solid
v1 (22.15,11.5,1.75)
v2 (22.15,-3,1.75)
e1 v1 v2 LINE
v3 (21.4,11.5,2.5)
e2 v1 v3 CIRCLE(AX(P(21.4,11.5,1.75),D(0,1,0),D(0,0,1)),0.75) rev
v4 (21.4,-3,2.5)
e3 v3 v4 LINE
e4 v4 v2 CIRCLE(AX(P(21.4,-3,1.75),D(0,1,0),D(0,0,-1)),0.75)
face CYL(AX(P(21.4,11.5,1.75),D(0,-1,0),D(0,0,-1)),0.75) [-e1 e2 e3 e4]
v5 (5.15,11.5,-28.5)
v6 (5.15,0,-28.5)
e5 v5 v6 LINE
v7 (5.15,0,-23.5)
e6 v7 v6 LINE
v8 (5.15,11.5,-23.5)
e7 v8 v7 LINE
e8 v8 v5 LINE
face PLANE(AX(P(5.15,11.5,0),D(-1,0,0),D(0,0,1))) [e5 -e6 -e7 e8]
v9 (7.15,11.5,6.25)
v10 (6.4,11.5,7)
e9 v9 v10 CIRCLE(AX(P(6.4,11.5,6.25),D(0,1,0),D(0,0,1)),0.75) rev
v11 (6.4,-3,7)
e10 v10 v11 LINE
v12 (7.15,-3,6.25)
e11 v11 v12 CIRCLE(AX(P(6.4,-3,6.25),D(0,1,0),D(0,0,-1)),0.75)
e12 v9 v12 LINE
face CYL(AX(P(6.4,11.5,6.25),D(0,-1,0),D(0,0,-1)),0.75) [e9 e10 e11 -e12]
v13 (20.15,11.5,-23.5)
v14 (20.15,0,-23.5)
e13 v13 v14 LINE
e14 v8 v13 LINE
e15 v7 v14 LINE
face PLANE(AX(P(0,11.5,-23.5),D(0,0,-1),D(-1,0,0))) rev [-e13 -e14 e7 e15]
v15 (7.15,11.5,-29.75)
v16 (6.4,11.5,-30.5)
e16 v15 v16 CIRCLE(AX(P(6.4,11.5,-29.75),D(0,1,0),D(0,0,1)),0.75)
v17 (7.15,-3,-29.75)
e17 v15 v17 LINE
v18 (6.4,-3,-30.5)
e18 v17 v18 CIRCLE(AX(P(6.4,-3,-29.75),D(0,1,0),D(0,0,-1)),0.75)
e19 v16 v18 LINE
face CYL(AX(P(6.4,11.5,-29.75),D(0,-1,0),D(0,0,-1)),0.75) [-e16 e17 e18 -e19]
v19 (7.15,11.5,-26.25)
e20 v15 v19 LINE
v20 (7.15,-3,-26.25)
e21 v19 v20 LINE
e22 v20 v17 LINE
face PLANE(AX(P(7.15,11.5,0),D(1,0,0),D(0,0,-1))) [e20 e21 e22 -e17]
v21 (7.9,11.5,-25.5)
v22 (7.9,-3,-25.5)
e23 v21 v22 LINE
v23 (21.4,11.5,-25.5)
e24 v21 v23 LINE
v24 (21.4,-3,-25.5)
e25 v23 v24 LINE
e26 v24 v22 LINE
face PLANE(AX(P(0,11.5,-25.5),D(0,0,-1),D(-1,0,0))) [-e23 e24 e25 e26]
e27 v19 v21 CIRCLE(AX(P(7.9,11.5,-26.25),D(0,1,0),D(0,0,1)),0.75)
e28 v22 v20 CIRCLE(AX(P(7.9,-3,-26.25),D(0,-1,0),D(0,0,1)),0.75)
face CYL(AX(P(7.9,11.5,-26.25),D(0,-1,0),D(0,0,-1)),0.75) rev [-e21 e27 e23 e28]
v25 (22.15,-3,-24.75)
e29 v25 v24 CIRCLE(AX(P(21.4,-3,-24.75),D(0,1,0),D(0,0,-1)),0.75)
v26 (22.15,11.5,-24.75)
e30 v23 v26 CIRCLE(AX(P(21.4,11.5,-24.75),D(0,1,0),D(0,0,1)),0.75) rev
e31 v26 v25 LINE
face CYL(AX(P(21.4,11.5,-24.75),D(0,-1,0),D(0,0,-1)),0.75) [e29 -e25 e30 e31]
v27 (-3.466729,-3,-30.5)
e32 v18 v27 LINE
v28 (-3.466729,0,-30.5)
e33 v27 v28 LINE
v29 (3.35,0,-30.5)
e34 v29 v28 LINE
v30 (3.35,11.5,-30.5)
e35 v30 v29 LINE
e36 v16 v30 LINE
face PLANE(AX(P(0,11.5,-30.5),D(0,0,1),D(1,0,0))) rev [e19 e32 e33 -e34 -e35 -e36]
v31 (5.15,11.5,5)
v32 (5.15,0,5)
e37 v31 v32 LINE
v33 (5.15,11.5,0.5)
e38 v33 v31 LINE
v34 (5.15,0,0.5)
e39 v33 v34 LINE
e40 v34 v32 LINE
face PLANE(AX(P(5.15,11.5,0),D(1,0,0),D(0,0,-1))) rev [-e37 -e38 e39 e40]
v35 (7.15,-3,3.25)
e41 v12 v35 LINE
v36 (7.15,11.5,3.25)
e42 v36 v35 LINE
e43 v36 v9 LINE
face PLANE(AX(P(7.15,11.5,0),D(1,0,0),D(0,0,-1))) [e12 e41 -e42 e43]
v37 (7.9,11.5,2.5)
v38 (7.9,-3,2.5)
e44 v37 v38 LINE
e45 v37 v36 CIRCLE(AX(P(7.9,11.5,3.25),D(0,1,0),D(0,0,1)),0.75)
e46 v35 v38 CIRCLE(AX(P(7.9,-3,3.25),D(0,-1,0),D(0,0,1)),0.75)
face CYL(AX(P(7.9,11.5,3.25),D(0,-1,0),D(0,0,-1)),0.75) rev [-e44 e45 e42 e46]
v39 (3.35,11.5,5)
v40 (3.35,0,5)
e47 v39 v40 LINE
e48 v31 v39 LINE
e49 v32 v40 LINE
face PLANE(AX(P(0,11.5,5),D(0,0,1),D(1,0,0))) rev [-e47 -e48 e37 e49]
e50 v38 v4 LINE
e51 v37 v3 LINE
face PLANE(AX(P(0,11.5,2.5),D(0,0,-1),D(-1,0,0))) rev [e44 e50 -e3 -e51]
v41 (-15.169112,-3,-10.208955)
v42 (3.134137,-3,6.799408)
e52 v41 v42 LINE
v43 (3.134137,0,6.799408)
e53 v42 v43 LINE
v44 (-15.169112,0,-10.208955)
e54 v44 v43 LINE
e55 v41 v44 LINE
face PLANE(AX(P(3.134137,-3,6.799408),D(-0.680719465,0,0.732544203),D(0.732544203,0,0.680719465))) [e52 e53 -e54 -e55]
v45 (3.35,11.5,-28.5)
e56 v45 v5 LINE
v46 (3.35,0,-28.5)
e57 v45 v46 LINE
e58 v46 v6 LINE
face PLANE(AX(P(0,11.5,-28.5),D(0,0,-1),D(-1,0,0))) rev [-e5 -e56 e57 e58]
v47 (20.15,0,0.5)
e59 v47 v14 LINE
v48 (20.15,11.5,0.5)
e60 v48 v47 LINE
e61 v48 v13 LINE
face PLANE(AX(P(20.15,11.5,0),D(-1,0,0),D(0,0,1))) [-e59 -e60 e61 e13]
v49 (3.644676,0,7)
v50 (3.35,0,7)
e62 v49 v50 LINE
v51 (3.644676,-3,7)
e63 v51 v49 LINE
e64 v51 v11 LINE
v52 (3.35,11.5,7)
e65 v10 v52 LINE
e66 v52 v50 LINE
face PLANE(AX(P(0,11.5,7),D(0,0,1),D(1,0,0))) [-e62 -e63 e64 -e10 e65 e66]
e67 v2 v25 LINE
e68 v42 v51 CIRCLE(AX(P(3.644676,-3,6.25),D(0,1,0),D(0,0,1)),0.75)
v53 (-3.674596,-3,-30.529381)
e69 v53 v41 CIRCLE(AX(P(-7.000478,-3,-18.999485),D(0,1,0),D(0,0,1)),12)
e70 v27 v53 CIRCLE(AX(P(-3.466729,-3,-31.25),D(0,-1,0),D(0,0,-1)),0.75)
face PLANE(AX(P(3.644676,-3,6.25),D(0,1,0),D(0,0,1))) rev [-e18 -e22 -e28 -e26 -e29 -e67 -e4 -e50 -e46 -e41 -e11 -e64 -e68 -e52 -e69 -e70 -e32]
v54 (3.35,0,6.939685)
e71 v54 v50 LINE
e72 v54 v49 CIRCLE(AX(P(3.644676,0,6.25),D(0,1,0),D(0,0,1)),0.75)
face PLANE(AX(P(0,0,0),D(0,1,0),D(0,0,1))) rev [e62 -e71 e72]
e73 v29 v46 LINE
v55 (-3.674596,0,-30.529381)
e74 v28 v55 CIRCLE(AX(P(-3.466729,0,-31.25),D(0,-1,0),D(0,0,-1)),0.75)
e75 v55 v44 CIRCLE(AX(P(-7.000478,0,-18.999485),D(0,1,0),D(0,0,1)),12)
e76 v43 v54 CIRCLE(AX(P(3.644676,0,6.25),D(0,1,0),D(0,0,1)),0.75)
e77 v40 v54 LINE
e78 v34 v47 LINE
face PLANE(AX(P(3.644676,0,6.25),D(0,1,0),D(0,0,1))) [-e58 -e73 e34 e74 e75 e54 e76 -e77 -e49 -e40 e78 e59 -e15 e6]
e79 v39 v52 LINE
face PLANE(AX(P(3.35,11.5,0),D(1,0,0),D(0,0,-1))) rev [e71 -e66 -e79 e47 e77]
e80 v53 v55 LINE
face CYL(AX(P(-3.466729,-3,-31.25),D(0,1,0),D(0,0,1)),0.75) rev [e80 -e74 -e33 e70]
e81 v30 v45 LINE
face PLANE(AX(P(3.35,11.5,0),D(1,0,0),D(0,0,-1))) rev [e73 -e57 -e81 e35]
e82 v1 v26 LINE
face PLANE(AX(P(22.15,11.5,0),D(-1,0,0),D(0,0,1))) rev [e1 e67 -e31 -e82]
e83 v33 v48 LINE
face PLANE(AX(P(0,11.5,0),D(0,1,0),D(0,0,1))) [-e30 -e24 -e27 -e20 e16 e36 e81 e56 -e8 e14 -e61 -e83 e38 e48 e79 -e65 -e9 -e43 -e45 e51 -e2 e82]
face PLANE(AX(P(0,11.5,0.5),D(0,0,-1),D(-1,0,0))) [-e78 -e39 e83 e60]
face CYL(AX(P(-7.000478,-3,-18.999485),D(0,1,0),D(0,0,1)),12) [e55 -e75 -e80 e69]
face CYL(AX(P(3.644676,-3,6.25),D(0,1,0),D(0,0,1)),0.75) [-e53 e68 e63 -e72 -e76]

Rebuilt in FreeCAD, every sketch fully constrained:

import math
import FreeCAD as App
import Part
import Sketcher
Q = App.Units.Quantity

doc = App.newDocument("Part")
body = doc.addObject("PartDesign::Body", "Body")

# Sketch on XZ plane
sketch1 = doc.addObject("Sketcher::SketchObject", "Sketch")
body.addObject(sketch1)
sketch1.AttachmentSupport = (doc.XZ_Plane, [""])
sketch1.MapMode = "FlatFace"
sketch1.addGeometry([
    Part.LineSegment(App.Vector(5.2, 5, 0), App.Vector(3.4, 5, 0)),  # 0
    Part.LineSegment(App.Vector(3.4, 5, 0), App.Vector(3.4, 7, 0)),  # 1
    Part.LineSegment(App.Vector(3.4, 7, 0), App.Vector(6.4, 7, 0)),  # 2
    Part.ArcOfCircle(Part.Circle(App.Vector(6.4, 6.2, 0), App.Vector(0, 0, 1), 0.8), math.radians(0), math.radians(90)),  # 3
    Part.LineSegment(App.Vector(7.2, 6.2, 0), App.Vector(7.2, 3.2, 0)),  # 4
    Part.ArcOfCircle(Part.Circle(App.Vector(7.9, 3.2, 0), App.Vector(0, 0, 1), 0.8), math.radians(180), math.radians(270)),  # 5
    Part.LineSegment(App.Vector(7.9, 2.5, 0), App.Vector(21.4, 2.5, 0)),  # 6
    Part.ArcOfCircle(Part.Circle(App.Vector(21.4, 1.8, 0), App.Vector(0, 0, 1), 0.8), math.radians(0), math.radians(90)),  # 7
    Part.LineSegment(App.Vector(22.1, 1.8, 0), App.Vector(22.1, -24.8, 0)),  # 8
    Part.ArcOfCircle(Part.Circle(App.Vector(21.4, -24.8, 0), App.Vector(0, 0, 1), 0.8), math.radians(-90), math.radians(0)),  # 9
    Part.LineSegment(App.Vector(21.4, -25.5, 0), App.Vector(7.9, -25.5, 0)),  # 10
    Part.ArcOfCircle(Part.Circle(App.Vector(7.9, -26.2, 0), App.Vector(0, 0, 1), 0.8), math.radians(90), math.radians(180)),  # 11
    Part.LineSegment(App.Vector(7.2, -26.2, 0), App.Vector(7.2, -29.8, 0)),  # 12
    Part.ArcOfCircle(Part.Circle(App.Vector(6.4, -29.8, 0), App.Vector(0, 0, 1), 0.8), math.radians(-90), math.radians(0)),  # 13
    Part.LineSegment(App.Vector(6.4, -30.5, 0), App.Vector(3.4, -30.5, 0)),  # 14
    Part.LineSegment(App.Vector(3.4, -30.5, 0), App.Vector(3.4, -28.5, 0)),  # 15
    Part.LineSegment(App.Vector(3.4, -28.5, 0), App.Vector(5.2, -28.5, 0)),  # 16
    Part.LineSegment(App.Vector(5.2, -28.5, 0), App.Vector(5.2, -23.5, 0)),  # 17
    Part.LineSegment(App.Vector(5.2, -23.5, 0), App.Vector(20.1, -23.5, 0)),  # 18
    Part.LineSegment(App.Vector(20.1, -23.5, 0), App.Vector(20.1, 0.5, 0)),  # 19
    Part.LineSegment(App.Vector(20.1, 0.5, 0), App.Vector(5.2, 0.5, 0)),  # 20
    Part.LineSegment(App.Vector(5.2, 0.5, 0), App.Vector(5.2, 5, 0)),  # 21
], False)
sketch1.addConstraint([
    Sketcher.Constraint("Coincident", 0, 2, 1, 1),
    Sketcher.Constraint("Coincident", 1, 2, 2, 1),
    Sketcher.Constraint("Tangent", 2, 2, 3, 2),
    Sketcher.Constraint("Tangent", 3, 1, 4, 1),
    Sketcher.Constraint("Tangent", 4, 2, 5, 1),
    Sketcher.Constraint("Tangent", 5, 2, 6, 1),
    Sketcher.Constraint("Tangent", 6, 2, 7, 2),
    Sketcher.Constraint("Tangent", 7, 1, 8, 1),
    Sketcher.Constraint("Tangent", 8, 2, 9, 2),
    Sketcher.Constraint("Tangent", 9, 1, 10, 1),
    Sketcher.Constraint("Tangent", 10, 2, 11, 1),
    Sketcher.Constraint("Tangent", 11, 2, 12, 1),
    Sketcher.Constraint("Tangent", 12, 2, 13, 2),
    Sketcher.Constraint("Tangent", 13, 1, 14, 1),
    Sketcher.Constraint("Coincident", 14, 2, 15, 1),
    Sketcher.Constraint("Coincident", 15, 2, 16, 1),
    Sketcher.Constraint("Coincident", 16, 2, 17, 1),
    Sketcher.Constraint("Coincident", 17, 2, 18, 1),
    Sketcher.Constraint("Coincident", 18, 2, 19, 1),
    Sketcher.Constraint("Coincident", 19, 2, 20, 1),
    Sketcher.Constraint("Coincident", 20, 2, 21, 1),
    Sketcher.Constraint("Coincident", 21, 2, 0, 1),
    Sketcher.Constraint("Horizontal", 0),
    Sketcher.Constraint("Vertical", 1),
    Sketcher.Constraint("Horizontal", 2),
    Sketcher.Constraint("Vertical", 4),
    Sketcher.Constraint("Horizontal", 6),
    Sketcher.Constraint("Vertical", 8),
    Sketcher.Constraint("Horizontal", 10),
    Sketcher.Constraint("Vertical", 12),
    Sketcher.Constraint("Horizontal", 14),
    Sketcher.Constraint("Vertical", 15),
    Sketcher.Constraint("Horizontal", 16),
    Sketcher.Constraint("Vertical", 17),
    Sketcher.Constraint("Horizontal", 18),
    Sketcher.Constraint("Vertical", 19),
    Sketcher.Constraint("Horizontal", 20),
    Sketcher.Constraint("Vertical", 21),
    Sketcher.Constraint("Equal", 3, 5),
    Sketcher.Constraint("Equal", 5, 7),
    Sketcher.Constraint("Equal", 7, 9),
    Sketcher.Constraint("Equal", 9, 11),
    Sketcher.Constraint("Equal", 11, 13),
    Sketcher.Constraint("Vertical", 5, 3, 11, 3),
    Sketcher.Constraint("Vertical", 1, 2, 14, 2),
    Sketcher.Constraint("Vertical", 17, 2, 20, 2),
    Sketcher.Constraint("Equal", 1, 15),
    Sketcher.Constraint("DistanceX", 18, 1, 18, 2, Q("15 mm")),
    Sketcher.Constraint("DistanceY", 1, 1, 1, 2, Q("2 mm")),
    Sketcher.Constraint("DistanceY", 4, 2, 4, 1, Q("3 mm")),
    Sketcher.Constraint("DistanceY", 17, 1, 17, 2, Q("5 mm")),
    Sketcher.Constraint("DistanceY", 19, 1, 19, 2, Q("24 mm")),
    Sketcher.Constraint("Radius", 3, Q("0.75 mm")),
    Sketcher.Constraint("DistanceX", 0, 2, 0, 1, Q("1.8 mm")),
    Sketcher.Constraint("DistanceX", 6, 1, 6, 2, Q("13.5 mm")),
    Sketcher.Constraint("DistanceY", 8, 2, 8, 1, Q("26.5 mm")),
    Sketcher.Constraint("DistanceY", 12, 2, 12, 1, Q("3.5 mm")),
    Sketcher.Constraint("DistanceY", -1, 1, 0, 2, Q("5 mm")),
    Sketcher.Constraint("DistanceX", 16, 2, 12, 2, Q("2 mm")),
    Sketcher.Constraint("DistanceX", -1, 1, 3, 3, Q("6.4 mm")),
])
pad1 = doc.addObject("PartDesign::Pad", "Pad")
body.addObject(pad1)
pad1.Profile = sketch1
pad1.Length = 11.5
pad1.Reversed = True

# Sketch on XZ plane
sketch2 = doc.addObject("Sketcher::SketchObject", "Sketch001")
body.addObject(sketch2)
sketch2.AttachmentSupport = (doc.XZ_Plane, [""])
sketch2.MapMode = "FlatFace"
sketch2.AttachmentOffset = App.Placement(App.Vector(0, 0, 3), App.Rotation())
sketch2.addGeometry([
    Part.LineSegment(App.Vector(-15.17, -10.21, 0), App.Vector(3.13, 6.8, 0)),  # 0
    Part.ArcOfCircle(Part.Circle(App.Vector(3.64, 6.25, 0), App.Vector(0, 0, 1), 0.75), math.radians(90), math.radians(133)),  # 1
    Part.LineSegment(App.Vector(3.64, 7, 0), App.Vector(6.4, 7, 0)),  # 2
    Part.ArcOfCircle(Part.Circle(App.Vector(6.4, 6.25, 0), App.Vector(0, 0, 1), 0.75), math.radians(0), math.radians(90)),  # 3
    Part.LineSegment(App.Vector(7.15, 6.25, 0), App.Vector(7.15, 3.25, 0)),  # 4
    Part.ArcOfCircle(Part.Circle(App.Vector(7.9, 3.25, 0), App.Vector(0, 0, 1), 0.75), math.radians(180), math.radians(270)),  # 5
    Part.LineSegment(App.Vector(7.9, 2.5, 0), App.Vector(21.4, 2.5, 0)),  # 6
    Part.ArcOfCircle(Part.Circle(App.Vector(21.4, 1.75, 0), App.Vector(0, 0, 1), 0.75), math.radians(0), math.radians(90)),  # 7
    Part.LineSegment(App.Vector(22.15, 1.75, 0), App.Vector(22.15, -24.75, 0)),  # 8
    Part.ArcOfCircle(Part.Circle(App.Vector(21.4, -24.75, 0), App.Vector(0, 0, 1), 0.75), math.radians(-90), math.radians(0)),  # 9
    Part.LineSegment(App.Vector(21.4, -25.5, 0), App.Vector(7.9, -25.5, 0)),  # 10
    Part.ArcOfCircle(Part.Circle(App.Vector(7.9, -26.25, 0), App.Vector(0, 0, 1), 0.75), math.radians(90), math.radians(180)),  # 11
    Part.LineSegment(App.Vector(7.15, -26.25, 0), App.Vector(7.15, -29.75, 0)),  # 12
    Part.ArcOfCircle(Part.Circle(App.Vector(6.4, -29.75, 0), App.Vector(0, 0, 1), 0.75), math.radians(-90), math.radians(0)),  # 13
    Part.LineSegment(App.Vector(6.4, -30.5, 0), App.Vector(-3.47, -30.5, 0)),  # 14
    Part.ArcOfCircle(Part.Circle(App.Vector(-3.47, -31.25, 0), App.Vector(0, 0, 1), 0.75), math.radians(90), math.radians(106.09)),  # 15
    Part.ArcOfCircle(Part.Circle(App.Vector(-7, -19, 0), App.Vector(0, 0, 1), 12), math.radians(133), math.radians(286)),  # 16
], False)
sketch2.addConstraint([
    Sketcher.Constraint("Tangent", 0, 2, 1, 2),
    Sketcher.Constraint("Tangent", 1, 1, 2, 1),
    Sketcher.Constraint("Tangent", 2, 2, 3, 2),
    Sketcher.Constraint("Tangent", 3, 1, 4, 1),
    Sketcher.Constraint("Tangent", 4, 2, 5, 1),
    Sketcher.Constraint("Tangent", 5, 2, 6, 1),
    Sketcher.Constraint("Tangent", 6, 2, 7, 2),
    Sketcher.Constraint("Tangent", 7, 1, 8, 1),
    Sketcher.Constraint("Tangent", 8, 2, 9, 2),
    Sketcher.Constraint("Tangent", 9, 1, 10, 1),
    Sketcher.Constraint("Tangent", 10, 2, 11, 1),
    Sketcher.Constraint("Tangent", 11, 2, 12, 1),
    Sketcher.Constraint("Tangent", 12, 2, 13, 2),
    Sketcher.Constraint("Tangent", 13, 1, 14, 1),
    Sketcher.Constraint("Tangent", 14, 2, 15, 1),
    Sketcher.Constraint("Tangent", 15, 2, 16, 2),
    Sketcher.Constraint("Tangent", 16, 1, 0, 1),
    Sketcher.Constraint("Horizontal", 2),
    Sketcher.Constraint("Vertical", 4),
    Sketcher.Constraint("Horizontal", 6),
    Sketcher.Constraint("Vertical", 8),
    Sketcher.Constraint("Horizontal", 10),
    Sketcher.Constraint("Vertical", 12),
    Sketcher.Constraint("Horizontal", 14),
    Sketcher.Constraint("Equal", 1, 3),
    Sketcher.Constraint("Equal", 3, 5),
    Sketcher.Constraint("Equal", 5, 7),
    Sketcher.Constraint("Equal", 7, 9),
    Sketcher.Constraint("Equal", 9, 11),
    Sketcher.Constraint("Equal", 11, 13),
    Sketcher.Constraint("Equal", 13, 15),
    Sketcher.Constraint("Vertical", 5, 3, 11, 3),
    Sketcher.Constraint("Radius", 16, Q("12 mm")),
    Sketcher.Constraint("DistanceY", 4, 2, 4, 1, Q("3 mm")),
    Sketcher.Constraint("Radius", 1, Q("0.75 mm")),
    Sketcher.Constraint("DistanceX", 6, 1, 6, 2, Q("13.5 mm")),
    Sketcher.Constraint("DistanceY", 8, 2, 8, 1, Q("26.5 mm")),
    Sketcher.Constraint("DistanceY", 12, 2, 12, 1, Q("3.5 mm")),
    Sketcher.Constraint("DistanceY", -1, 1, 1, 1, Q("7 mm")),
    Sketcher.Constraint("DistanceX", -1, 1, 3, 3, Q("6.4 mm")),
    Sketcher.Constraint("DistanceX", 14, 2, 14, 1, Q("9.866729 mm")),
    Sketcher.Constraint("DistanceX", 2, 1, 2, 2, Q("2.755324 mm")),
    Sketcher.Constraint("DistanceX", 16, 3, -1, 1, Q("7.000478 mm")),
])
pad2 = doc.addObject("PartDesign::Pad", "Pad001")
body.addObject(pad2)
pad2.Profile = sketch2
pad2.Length = 3
pad2.Reversed = True

doc.recompute()
